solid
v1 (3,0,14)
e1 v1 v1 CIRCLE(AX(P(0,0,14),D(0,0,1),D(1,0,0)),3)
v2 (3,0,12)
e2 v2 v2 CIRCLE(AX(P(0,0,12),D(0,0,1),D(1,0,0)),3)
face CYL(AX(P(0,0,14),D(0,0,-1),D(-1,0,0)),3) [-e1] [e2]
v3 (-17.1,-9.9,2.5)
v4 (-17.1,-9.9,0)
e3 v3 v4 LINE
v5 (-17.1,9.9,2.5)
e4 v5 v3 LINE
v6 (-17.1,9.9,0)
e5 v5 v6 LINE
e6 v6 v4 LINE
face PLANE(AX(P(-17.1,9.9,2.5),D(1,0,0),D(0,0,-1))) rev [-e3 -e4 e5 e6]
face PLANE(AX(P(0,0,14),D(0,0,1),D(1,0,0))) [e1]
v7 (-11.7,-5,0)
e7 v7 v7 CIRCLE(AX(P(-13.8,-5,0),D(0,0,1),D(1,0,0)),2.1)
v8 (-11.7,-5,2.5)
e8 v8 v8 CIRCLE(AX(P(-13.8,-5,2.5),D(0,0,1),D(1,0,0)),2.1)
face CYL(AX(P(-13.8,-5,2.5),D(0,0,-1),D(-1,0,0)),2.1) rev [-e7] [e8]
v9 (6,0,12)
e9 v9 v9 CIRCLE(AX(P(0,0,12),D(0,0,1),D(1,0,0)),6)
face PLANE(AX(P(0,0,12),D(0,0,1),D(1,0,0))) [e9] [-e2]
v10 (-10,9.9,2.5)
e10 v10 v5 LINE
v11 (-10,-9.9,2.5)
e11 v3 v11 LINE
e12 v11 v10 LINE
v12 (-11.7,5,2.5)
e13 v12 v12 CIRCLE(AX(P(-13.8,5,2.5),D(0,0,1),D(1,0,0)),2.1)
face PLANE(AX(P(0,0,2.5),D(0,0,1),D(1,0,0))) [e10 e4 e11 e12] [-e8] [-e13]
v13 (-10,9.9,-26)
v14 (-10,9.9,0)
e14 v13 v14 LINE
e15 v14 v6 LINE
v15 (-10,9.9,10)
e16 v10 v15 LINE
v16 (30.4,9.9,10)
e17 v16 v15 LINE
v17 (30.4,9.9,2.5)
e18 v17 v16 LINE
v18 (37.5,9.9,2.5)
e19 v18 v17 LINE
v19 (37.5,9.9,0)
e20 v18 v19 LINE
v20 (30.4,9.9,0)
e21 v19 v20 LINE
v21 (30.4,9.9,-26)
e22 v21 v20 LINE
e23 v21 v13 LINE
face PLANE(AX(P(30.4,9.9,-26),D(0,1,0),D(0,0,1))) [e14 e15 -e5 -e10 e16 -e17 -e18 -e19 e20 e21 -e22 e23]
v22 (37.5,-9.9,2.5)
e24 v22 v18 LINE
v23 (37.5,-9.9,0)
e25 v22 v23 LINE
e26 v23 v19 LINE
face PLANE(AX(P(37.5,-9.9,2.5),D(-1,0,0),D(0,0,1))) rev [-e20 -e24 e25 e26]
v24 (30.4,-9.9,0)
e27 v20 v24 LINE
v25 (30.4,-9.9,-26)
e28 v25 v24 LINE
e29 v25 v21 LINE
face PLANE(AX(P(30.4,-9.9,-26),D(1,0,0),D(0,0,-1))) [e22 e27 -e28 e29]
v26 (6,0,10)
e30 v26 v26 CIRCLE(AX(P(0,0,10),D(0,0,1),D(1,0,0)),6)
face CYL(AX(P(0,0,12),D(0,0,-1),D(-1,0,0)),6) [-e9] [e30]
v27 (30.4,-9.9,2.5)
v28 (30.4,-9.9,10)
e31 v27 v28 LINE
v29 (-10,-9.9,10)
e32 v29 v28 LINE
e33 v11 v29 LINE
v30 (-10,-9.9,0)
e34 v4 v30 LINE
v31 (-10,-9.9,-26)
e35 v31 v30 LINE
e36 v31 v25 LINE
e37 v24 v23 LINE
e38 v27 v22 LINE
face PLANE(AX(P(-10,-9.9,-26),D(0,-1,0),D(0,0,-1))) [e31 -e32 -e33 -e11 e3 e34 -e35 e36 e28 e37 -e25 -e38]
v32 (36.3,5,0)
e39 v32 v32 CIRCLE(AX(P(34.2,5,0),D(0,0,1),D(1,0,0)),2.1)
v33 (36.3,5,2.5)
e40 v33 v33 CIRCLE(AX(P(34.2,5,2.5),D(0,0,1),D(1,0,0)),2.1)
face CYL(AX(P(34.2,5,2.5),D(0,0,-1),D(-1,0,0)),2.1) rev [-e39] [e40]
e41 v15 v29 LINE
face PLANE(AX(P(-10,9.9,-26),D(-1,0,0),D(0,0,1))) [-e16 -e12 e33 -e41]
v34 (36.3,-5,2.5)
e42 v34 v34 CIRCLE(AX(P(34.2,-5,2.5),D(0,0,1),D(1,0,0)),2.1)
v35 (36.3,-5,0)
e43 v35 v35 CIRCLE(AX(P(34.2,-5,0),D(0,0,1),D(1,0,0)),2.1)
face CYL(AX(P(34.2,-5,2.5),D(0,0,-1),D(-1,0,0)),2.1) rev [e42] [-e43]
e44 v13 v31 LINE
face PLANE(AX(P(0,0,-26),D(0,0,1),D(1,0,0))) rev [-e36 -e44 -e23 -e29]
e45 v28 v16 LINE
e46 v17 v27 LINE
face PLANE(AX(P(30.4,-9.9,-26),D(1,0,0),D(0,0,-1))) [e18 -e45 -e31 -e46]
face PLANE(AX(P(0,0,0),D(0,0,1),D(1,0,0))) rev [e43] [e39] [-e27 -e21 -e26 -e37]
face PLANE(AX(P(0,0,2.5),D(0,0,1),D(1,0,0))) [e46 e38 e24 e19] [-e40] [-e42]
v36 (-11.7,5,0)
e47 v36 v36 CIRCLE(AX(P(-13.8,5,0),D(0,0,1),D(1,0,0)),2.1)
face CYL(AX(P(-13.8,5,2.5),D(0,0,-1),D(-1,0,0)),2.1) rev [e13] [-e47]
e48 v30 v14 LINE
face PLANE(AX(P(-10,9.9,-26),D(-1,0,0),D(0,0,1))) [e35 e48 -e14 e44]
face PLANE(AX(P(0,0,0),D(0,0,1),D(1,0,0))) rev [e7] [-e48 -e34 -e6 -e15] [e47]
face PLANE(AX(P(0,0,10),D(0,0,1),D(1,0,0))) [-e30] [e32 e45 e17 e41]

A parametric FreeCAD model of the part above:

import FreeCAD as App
import Part
import Sketcher
from FreeCAD import Vector
Q = App.Units.Quantity

doc = App.newDocument("Part")
body = doc.addObject("PartDesign::Body", "Body")

# Sketch on XY plane
sketch1 = body.newObject("Sketcher::SketchObject", "Sketch")
sketch1.AttachmentSupport = (doc.getObject("XY_Plane"), [""])
sketch1.MapMode = "FlatFace"
sketch1.addGeometry(Part.LineSegment(Vector(-10, 10, 0), Vector(-10, -10, 0)), False)
sketch1.addGeometry(Part.LineSegment(Vector(-10, -10, 0), Vector(30, -10, 0)), False)
sketch1.addGeometry(Part.LineSegment(Vector(30, -10, 0), Vector(30, 10, 0)), False)
sketch1.addGeometry(Part.LineSegment(Vector(30, 10, 0), Vector(-10, 10, 0)), False)
sketch1.addConstraint(Sketcher.Constraint("Coincident", 0, 2, 1, 1))
sketch1.addConstraint(Sketcher.Constraint("Coincident", 1, 2, 2, 1))
sketch1.addConstraint(Sketcher.Constraint("Coincident", 2, 2, 3, 1))
sketch1.addConstraint(Sketcher.Constraint("Coincident", 3, 2, 0, 1))
sketch1.addConstraint(Sketcher.Constraint("Vertical", 0))
sketch1.addConstraint(Sketcher.Constraint("Horizontal", 1))
sketch1.addConstraint(Sketcher.Constraint("Vertical", 2))
sketch1.addConstraint(Sketcher.Constraint("Horizontal", 3))
sketch1.addConstraint(Sketcher.Constraint("DistanceX", 1, 1, 1, 2, Q("40.4 mm")))
sketch1.addConstraint(Sketcher.Constraint("DistanceY", 0, 2, 0, 1, Q("19.8 mm")))
sketch1.addConstraint(Sketcher.Constraint("DistanceX", 0, 2, -1, 1, Q("10 mm")))
sketch1.addConstraint(Sketcher.Constraint("DistanceY", 0, 2, -1, 1, Q("9.9 mm")))
pad1 = body.newObject("PartDesign::Pad", "Pad")
pad1.Profile = sketch1
pad1.Type = "TwoLengths"
pad1.Length = 10
pad1.Length2 = 26

# Sketch on XY plane
sketch2 = body.newObject("Sketcher::SketchObject", "Sketch001")
sketch2.AttachmentSupport = (doc.getObject("XY_Plane"), [""])
sketch2.MapMode = "FlatFace"
sketch2.addGeometry(Part.LineSegment(Vector(-17.1, 9.9, 0), Vector(-17.1, -9.9, 0)), False)
sketch2.addGeometry(Part.LineSegment(Vector(-17.1, -9.9, 0), Vector(-10, -9.9, 0)), False)
sketch2.addGeometry(Part.LineSegment(Vector(-10, -9.9, 0), Vector(-10, 9.9, 0)), False)
sketch2.addGeometry(Part.LineSegment(Vector(-10, 9.9, 0), Vector(-17.1, 9.9, 0)), False)
sketch2.addGeometry(Part.Circle(Vector(-13.8, -5, 0), Vector(0, 0, 1), 2.1), False)
sketch2.addGeometry(Part.Circle(Vector(-13.8, 5, 0), Vector(0, 0, 1), 2.1), False)
sketch2.addConstraint(Sketcher.Constraint("Coincident", 0, 2, 1, 1))
sketch2.addConstraint(Sketcher.Constraint("Coincident", 1, 2, 2, 1))
sketch2.addConstraint(Sketcher.Constraint("Coincident", 2, 2, 3, 1))
sketch2.addConstraint(Sketcher.Constraint("Coincident", 3, 2, 0, 1))
sketch2.addConstraint(Sketcher.Constraint("Vertical", 0))
sketch2.addConstraint(Sketcher.Constraint("Horizontal", 1))
sketch2.addConstraint(Sketcher.Constraint("Vertical", 2))
sketch2.addConstraint(Sketcher.Constraint("Horizontal", 3))
sketch2.addConstraint(Sketcher.Constraint("Equal", 4, 5))
sketch2.addConstraint(Sketcher.Constraint("Symmetric", 4, 3, 5, 3, -1))
sketch2.addConstraint(Sketcher.Constraint("Diameter", 4, Q("4.2 mm")))
sketch2.addConstraint(Sketcher.Constraint("DistanceX", 1, 1, 1, 2, Q("7.1 mm")))
sketch2.addConstraint(Sketcher.Constraint("DistanceY", 0, 2, 0, 1, Q("19.8 mm")))
sketch2.addConstraint(Sketcher.Constraint("DistanceY", 4, 3, -1, 1, Q("5 mm")))
sketch2.addConstraint(Sketcher.Constraint("DistanceX", 1, 2, -1, 1, Q("10 mm")))
sketch2.addConstraint(Sketcher.Constraint("DistanceX", 4, 3, -1, 1, Q("13.8 mm")))
sketch2.addConstraint(Sketcher.Constraint("DistanceY", 0, 2, -1, 1, Q("9.9 mm")))
pad2 = body.newObject("PartDesign::Pad", "Pad001")
pad2.Profile = sketch2
pad2.Length = 2.5

# Sketch on XY plane
sketch3 = body.newObject("Sketcher::SketchObject", "Sketch002")
sketch3.AttachmentSupport = (doc.getObject("XY_Plane"), [""])
sketch3.MapMode = "FlatFace"
sketch3.addGeometry(Part.LineSegment(Vector(30.4, 9.9, 0), Vector(30.4, -9.9, 0)), False)
sketch3.addGeometry(Part.LineSegment(Vector(30.4, -9.9, 0), Vector(37.5, -9.9, 0)), False)
sketch3.addGeometry(Part.LineSegment(Vector(37.5, -9.9, 0), Vector(37.5, 9.9, 0)), False)
sketch3.addGeometry(Part.LineSegment(Vector(37.5, 9.9, 0), Vector(30.4, 9.9, 0)), False)
sketch3.addGeometry(Part.Circle(Vector(34.2, -5, 0), Vector(0, 0, 1), 2.1), False)
sketch3.addGeometry(Part.Circle(Vector(34.2, 5, 0), Vector(0, 0, 1), 2.1), False)
sketch3.addConstraint(Sketcher.Constraint("Coincident", 0, 2, 1, 1))
sketch3.addConstraint(Sketcher.Constraint("Coincident", 1, 2, 2, 1))
sketch3.addConstraint(Sketcher.Constraint("Coincident", 2, 2, 3, 1))
sketch3.addConstraint(Sketcher.Constraint("Coincident", 3, 2, 0, 1))
sketch3.addConstraint(Sketcher.Constraint("Vertical", 0))
sketch3.addConstraint(Sketcher.Constraint("Horizontal", 1))
sketch3.addConstraint(Sketcher.Constraint("Vertical", 2))
sketch3.addConstraint(Sketcher.Constraint("Horizontal", 3))
sketch3.addConstraint(Sketcher.Constraint("Equal", 4, 5))
sketch3.addConstraint(Sketcher.Constraint("Symmetric", 4, 3, 5, 3, -1))
sketch3.addConstraint(Sketcher.Constraint("Diameter", 4, Q("4.2 mm")))
sketch3.addConstraint(Sketcher.Constraint("DistanceX", 1, 1, 1, 2, Q("7.1 mm")))
sketch3.addConstraint(Sketcher.Constraint("DistanceY", 0, 2, 0, 1, Q("19.8 mm")))
sketch3.addConstraint(Sketcher.Constraint("DistanceY", 4, 3, -1, 1, Q("5 mm")))
sketch3.addConstraint(Sketcher.Constraint("DistanceX", -1, 1, 4, 3, Q("34.2 mm")))
sketch3.addConstraint(Sketcher.Constraint("DistanceX", -1, 1, 0, 2, Q("30.4 mm")))
sketch3.addConstraint(Sketcher.Constraint("DistanceY", 0, 2, -1, 1, Q("9.9 mm")))
pad3 = body.newObject("PartDesign::Pad", "Pad002")
pad3.Profile = sketch3
pad3.Length = 2.5

# Sketch on XY plane
sketch4 = body.newObject("Sketcher::SketchObject", "Sketch003")
sketch4.AttachmentSupport = (doc.getObject("XY_Plane"), [""])
sketch4.MapMode = "FlatFace"
sketch4.AttachmentOffset = App.Placement(Vector(0, 0, 10), App.Rotation())
sketch4.addGeometry(Part.Circle(Vector(0, 0, 0), Vector(0, 0, 1), 6), False)
sketch4.addConstraint(Sketcher.Constraint("Coincident", 0, 3, -1, 1))
sketch4.addConstraint(Sketcher.Constraint("Diameter", 0, Q("12 mm")))
pad4 = body.newObject("PartDesign::Pad", "Pad003")
pad4.Profile = sketch4
pad4.Length = 2

# Sketch on XY plane
sketch5 = body.newObject("Sketcher::SketchObject", "Sketch004")
sketch5.AttachmentSupport = (doc.getObject("XY_Plane"), [""])
sketch5.MapMode = "FlatFace"
sketch5.AttachmentOffset = App.Placement(Vector(0, 0, 12), App.Rotation())
sketch5.addGeometry(Part.Circle(Vector(0, 0, 0), Vector(0, 0, 1), 3), False)
sketch5.addConstraint(Sketcher.Constraint("Coincident", 0, 3, -1, 1))
sketch5.addConstraint(Sketcher.Constraint("Diameter", 0, Q("6 mm")))
pad5 = body.newObject("PartDesign::Pad", "Pad004")
pad5.Profile = sketch5
pad5.Length = 2

doc.recompute()
